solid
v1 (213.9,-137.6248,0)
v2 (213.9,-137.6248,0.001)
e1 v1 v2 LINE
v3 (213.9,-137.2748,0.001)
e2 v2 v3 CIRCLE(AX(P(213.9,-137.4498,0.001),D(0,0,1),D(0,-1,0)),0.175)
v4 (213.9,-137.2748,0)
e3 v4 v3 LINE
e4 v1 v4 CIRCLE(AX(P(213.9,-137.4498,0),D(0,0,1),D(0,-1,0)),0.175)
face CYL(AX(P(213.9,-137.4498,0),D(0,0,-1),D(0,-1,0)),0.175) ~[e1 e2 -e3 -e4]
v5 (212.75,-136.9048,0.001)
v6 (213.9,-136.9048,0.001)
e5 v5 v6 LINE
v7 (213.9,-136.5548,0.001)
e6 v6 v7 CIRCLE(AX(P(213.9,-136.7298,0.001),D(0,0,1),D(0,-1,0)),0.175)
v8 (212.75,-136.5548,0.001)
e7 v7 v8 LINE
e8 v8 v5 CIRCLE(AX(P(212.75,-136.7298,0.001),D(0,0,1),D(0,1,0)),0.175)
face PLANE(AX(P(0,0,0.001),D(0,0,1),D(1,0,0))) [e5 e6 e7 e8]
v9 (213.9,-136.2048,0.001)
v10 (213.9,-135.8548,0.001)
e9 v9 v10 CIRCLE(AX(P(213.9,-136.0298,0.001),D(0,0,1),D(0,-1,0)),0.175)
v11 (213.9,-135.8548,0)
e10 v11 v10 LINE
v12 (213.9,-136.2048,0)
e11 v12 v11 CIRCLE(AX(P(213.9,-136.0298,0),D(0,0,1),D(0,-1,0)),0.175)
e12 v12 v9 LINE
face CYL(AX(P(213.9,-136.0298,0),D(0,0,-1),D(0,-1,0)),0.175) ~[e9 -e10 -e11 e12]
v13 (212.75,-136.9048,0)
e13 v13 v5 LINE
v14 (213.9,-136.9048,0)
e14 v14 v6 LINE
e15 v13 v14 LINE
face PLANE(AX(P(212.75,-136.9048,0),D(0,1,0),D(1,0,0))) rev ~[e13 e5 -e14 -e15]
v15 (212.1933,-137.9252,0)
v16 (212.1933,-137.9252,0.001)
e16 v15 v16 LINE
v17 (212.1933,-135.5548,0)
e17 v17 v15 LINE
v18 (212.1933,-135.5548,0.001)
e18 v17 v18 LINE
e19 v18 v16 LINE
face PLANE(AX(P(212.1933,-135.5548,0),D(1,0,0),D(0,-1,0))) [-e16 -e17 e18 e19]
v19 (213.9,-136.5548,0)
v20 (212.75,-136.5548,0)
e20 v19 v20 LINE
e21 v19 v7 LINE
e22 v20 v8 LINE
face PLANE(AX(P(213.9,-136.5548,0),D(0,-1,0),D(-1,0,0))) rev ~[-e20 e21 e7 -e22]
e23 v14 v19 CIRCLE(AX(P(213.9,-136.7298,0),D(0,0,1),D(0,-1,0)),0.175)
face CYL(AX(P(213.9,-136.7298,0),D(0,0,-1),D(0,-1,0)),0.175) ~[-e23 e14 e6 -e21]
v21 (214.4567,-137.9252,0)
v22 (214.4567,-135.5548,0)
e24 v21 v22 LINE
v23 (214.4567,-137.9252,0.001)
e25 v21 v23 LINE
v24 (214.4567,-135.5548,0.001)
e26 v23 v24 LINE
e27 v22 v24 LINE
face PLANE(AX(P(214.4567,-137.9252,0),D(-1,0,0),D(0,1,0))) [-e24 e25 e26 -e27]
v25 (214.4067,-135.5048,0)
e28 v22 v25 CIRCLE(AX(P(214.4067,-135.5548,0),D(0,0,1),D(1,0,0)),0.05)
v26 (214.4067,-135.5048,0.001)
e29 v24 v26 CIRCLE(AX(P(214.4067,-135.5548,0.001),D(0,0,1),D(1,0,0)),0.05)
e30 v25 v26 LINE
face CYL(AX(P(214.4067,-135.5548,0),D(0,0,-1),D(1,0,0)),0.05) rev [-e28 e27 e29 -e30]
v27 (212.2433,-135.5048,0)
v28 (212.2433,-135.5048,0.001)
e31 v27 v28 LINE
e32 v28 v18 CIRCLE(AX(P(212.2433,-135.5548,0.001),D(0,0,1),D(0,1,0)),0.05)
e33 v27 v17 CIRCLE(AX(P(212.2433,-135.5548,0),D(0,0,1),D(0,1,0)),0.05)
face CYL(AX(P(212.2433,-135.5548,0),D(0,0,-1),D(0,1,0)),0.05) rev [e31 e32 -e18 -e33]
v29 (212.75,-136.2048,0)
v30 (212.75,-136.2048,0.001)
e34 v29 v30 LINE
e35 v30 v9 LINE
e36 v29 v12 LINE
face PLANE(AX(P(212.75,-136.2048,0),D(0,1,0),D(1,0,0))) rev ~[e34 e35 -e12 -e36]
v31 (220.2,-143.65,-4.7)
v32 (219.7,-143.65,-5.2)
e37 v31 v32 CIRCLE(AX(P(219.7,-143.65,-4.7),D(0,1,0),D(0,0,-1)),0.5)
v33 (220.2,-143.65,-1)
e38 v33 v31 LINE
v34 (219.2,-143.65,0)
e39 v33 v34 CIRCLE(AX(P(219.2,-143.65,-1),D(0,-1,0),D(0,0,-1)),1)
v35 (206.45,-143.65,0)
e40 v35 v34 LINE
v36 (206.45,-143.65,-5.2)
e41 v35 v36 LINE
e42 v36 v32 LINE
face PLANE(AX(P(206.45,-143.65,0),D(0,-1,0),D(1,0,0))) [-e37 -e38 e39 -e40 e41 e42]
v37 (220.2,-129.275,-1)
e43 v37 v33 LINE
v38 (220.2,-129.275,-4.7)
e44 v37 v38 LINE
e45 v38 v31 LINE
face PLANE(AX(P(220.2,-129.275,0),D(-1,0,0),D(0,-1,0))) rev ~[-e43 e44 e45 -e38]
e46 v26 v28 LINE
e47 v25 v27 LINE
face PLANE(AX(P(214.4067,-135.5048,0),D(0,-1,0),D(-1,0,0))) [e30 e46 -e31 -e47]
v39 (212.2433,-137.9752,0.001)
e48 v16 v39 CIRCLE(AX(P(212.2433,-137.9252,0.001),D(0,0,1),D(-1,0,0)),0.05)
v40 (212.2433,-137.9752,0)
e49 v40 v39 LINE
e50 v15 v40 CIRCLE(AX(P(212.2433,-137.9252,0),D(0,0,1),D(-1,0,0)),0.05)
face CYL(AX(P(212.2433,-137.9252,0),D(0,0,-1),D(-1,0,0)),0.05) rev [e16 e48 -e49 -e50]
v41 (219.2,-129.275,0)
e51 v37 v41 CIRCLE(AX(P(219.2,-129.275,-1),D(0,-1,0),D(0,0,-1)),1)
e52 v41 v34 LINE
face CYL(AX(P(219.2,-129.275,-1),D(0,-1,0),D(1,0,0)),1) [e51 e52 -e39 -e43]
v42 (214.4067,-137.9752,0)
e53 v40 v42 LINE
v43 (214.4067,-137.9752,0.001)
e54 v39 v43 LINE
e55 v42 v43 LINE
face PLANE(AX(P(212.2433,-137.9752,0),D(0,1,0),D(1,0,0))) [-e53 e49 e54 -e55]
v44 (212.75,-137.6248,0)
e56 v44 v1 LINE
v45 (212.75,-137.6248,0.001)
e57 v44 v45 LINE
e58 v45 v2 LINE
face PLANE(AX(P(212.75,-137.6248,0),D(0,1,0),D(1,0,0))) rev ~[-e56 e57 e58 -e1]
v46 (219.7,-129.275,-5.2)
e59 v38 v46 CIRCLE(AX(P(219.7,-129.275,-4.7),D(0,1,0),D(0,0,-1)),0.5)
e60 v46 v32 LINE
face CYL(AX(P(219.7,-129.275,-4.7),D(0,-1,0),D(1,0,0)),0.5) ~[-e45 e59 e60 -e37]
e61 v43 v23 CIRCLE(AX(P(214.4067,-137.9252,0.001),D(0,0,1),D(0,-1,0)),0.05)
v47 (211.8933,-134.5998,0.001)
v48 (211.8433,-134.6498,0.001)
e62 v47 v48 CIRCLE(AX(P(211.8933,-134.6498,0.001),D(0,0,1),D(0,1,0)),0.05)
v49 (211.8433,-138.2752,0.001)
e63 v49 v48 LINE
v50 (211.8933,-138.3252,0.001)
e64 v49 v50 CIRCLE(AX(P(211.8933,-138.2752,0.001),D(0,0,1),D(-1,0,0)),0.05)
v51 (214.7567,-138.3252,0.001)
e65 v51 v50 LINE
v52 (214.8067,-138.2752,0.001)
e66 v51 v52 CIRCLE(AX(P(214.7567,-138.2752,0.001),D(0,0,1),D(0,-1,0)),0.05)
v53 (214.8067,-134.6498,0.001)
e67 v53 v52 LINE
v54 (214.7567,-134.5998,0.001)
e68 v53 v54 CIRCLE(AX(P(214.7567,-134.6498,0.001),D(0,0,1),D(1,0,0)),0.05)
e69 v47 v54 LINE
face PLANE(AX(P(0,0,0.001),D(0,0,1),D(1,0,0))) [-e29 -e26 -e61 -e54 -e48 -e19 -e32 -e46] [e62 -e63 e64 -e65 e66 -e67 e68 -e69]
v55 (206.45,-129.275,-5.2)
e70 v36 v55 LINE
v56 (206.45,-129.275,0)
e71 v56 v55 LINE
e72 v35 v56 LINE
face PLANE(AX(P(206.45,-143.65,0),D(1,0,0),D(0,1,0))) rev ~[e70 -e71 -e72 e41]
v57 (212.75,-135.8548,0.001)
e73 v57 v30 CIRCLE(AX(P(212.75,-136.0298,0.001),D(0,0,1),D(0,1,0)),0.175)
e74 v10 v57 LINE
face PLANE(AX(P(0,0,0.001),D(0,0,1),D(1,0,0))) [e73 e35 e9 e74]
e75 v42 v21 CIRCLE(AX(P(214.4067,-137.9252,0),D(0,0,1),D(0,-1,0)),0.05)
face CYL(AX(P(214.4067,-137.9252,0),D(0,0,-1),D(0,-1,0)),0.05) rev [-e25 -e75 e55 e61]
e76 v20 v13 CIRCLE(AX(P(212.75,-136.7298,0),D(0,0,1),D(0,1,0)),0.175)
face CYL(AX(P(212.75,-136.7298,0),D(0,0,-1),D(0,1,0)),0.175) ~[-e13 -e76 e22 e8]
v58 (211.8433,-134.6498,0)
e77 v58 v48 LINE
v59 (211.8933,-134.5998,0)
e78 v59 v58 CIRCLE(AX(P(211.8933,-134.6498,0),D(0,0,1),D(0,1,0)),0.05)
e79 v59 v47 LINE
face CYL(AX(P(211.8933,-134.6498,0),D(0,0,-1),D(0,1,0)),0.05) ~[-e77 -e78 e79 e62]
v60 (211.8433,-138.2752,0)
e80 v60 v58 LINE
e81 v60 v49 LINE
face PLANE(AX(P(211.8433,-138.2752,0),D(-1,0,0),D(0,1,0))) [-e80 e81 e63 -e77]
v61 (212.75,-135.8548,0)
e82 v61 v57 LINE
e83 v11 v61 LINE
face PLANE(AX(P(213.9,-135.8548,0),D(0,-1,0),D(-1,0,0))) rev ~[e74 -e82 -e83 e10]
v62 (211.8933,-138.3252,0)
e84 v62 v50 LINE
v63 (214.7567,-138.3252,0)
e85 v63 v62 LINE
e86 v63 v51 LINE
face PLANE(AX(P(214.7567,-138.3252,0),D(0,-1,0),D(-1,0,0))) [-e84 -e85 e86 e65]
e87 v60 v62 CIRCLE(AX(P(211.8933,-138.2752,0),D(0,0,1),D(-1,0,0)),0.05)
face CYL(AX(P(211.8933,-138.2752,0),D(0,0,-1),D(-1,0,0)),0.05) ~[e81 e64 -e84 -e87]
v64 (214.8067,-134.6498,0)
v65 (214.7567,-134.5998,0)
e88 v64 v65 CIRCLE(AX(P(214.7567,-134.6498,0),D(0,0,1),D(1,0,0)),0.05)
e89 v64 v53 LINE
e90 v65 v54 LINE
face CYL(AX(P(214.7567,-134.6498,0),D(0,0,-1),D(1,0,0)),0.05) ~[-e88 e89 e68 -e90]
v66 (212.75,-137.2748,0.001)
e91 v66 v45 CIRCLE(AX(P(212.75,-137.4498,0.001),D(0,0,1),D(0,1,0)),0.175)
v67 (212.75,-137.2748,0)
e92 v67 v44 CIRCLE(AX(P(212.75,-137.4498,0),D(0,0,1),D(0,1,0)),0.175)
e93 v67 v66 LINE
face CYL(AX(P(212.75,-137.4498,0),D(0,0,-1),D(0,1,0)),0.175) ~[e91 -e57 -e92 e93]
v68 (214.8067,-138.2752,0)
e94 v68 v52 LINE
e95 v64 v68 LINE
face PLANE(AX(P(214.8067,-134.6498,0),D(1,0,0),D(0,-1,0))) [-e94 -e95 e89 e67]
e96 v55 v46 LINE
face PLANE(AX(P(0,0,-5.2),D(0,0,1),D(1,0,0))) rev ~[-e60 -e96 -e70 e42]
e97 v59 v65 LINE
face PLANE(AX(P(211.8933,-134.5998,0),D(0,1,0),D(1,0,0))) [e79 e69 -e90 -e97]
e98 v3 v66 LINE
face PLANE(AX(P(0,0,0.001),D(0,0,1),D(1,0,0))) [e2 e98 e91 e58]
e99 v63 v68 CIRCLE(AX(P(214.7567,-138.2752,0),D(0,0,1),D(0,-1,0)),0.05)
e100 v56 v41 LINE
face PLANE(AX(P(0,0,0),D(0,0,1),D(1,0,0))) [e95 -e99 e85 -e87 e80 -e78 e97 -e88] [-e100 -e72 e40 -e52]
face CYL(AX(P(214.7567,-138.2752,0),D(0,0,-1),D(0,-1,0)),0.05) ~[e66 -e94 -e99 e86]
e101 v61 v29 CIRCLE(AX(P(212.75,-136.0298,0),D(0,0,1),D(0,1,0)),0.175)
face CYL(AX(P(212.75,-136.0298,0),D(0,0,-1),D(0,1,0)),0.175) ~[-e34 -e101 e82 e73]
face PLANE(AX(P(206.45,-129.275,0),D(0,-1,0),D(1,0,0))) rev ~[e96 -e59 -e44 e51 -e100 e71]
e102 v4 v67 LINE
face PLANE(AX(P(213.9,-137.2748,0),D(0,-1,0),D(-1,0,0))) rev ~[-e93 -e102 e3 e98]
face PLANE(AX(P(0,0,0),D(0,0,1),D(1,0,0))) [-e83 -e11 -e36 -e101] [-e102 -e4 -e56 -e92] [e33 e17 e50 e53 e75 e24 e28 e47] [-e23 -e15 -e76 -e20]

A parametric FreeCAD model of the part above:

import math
import FreeCAD as App
import Part
import Sketcher
from FreeCAD import Vector
Q = App.Units.Quantity


def edges_at(feature, points):
    """Names of the edges that pass closest to the given points."""
    edges = feature.Shape.Edges
    near = lambda p: min(range(len(edges)), key=lambda i: edges[i].distToShape(Part.Vertex(*p))[0])
    return sorted({f"Edge{near(p) + 1}" for p in points})


def add_polygon(sketch, points):
    """Adds a closed chain of lines whose ends are joined by coincident constraints."""
    first, n = sketch.GeometryCount, len(points)
    for a, b in zip(points, points[1:] + points[:1]):
        sketch.addGeometry(Part.LineSegment(App.Vector(*a, 0), App.Vector(*b, 0)), False)
    for i in range(n):
        sketch.addConstraint(Sketcher.Constraint("Coincident", first + i, 2, first + (i + 1) % n, 1))

doc = App.newDocument("Part")
body = doc.addObject("PartDesign::Body", "Body")

# Sketch on XY plane
sketch1 = body.newObject("Sketcher::SketchObject", "Sketch")
sketch1.AttachmentSupport = (doc.getObject("XY_Plane"), [""])
sketch1.MapMode = "FlatFace"
add_polygon(sketch1, [(206, -129), (206, -144), (220, -144), (220, -129)])  # lines 0-3
sketch1.addConstraint(Sketcher.Constraint("Vertical", 0))
sketch1.addConstraint(Sketcher.Constraint("Horizontal", 1))
sketch1.addConstraint(Sketcher.Constraint("Vertical", 2))
sketch1.addConstraint(Sketcher.Constraint("Horizontal", 3))
sketch1.addConstraint(Sketcher.Constraint("DistanceX", 1, 1, 1, 2, Q("13.75 mm")))
sketch1.addConstraint(Sketcher.Constraint("DistanceX", -1, 1, 1, 2, Q("220.2 mm")))
sketch1.addConstraint(Sketcher.Constraint("DistanceY", 0, 2, 0, 1, Q("14.375 mm")))
sketch1.addConstraint(Sketcher.Constraint("DistanceY", 0, 2, -1, 1, Q("143.65 mm")))
pad1 = body.newObject("PartDesign::Pad", "Pad")
pad1.Profile = sketch1
pad1.Length = 5.2
pad1.Reversed = True
doc.recompute()

fillet = body.newObject("PartDesign::Fillet", "Fillet")
fillet.Base = (pad1, edges_at(pad1, [(220.2, -136.463, -5.2)]))
fillet.Radius = 0.5
doc.recompute()

fillet2 = body.newObject("PartDesign::Fillet", "Fillet001")
fillet2.Base = (fillet, edges_at(fillet, [(220.2, -136.463, 0)]))
fillet2.Radius = 1

# Sketch on XY plane
sketch2 = body.newObject("Sketcher::SketchObject", "Sketch001")
sketch2.AttachmentSupport = (doc.getObject("XY_Plane"), [""])
sketch2.MapMode = "FlatFace"
sketch2.addGeometry(Part.LineSegment(Vector(214.757, -134.6, 0), Vector(211.893, -134.6, 0)), False)
sketch2.addGeometry(Part.ArcOfCircle(Part.Circle(Vector(211.893, -134.65, 0), Vector(0, 0, 1), 0.05), math.radians(90), math.radians(180)), False)
sketch2.addGeometry(Part.LineSegment(Vector(211.843, -134.65, 0), Vector(211.843, -138.275, 0)), False)
sketch2.addGeometry(Part.ArcOfCircle(Part.Circle(Vector(211.893, -138.275, 0), Vector(0, 0, 1), 0.05), math.radians(180), math.radians(270)), False)
sketch2.addGeometry(Part.LineSegment(Vector(211.893, -138.325, 0), Vector(214.757, -138.325, 0)), False)
sketch2.addGeometry(Part.ArcOfCircle(Part.Circle(Vector(214.757, -138.275, 0), Vector(0, 0, 1), 0.05), math.radians(-90), math.radians(0)), False)
sketch2.addGeometry(Part.LineSegment(Vector(214.807, -138.275, 0), Vector(214.807, -134.65, 0)), False)
sketch2.addGeometry(Part.ArcOfCircle(Part.Circle(Vector(214.757, -134.65, 0), Vector(0, 0, 1), 0.05), math.radians(0), math.radians(90)), False)
sketch2.addGeometry(Part.LineSegment(Vector(214.407, -137.975, 0), Vector(212.243, -137.975, 0)), False)
sketch2.addGeometry(Part.ArcOfCircle(Part.Circle(Vector(212.243, -137.925, 0), Vector(0, 0, 1), 0.05), math.radians(180), math.radians(270)), False)
sketch2.addGeometry(Part.LineSegment(Vector(212.193, -137.925, 0), Vector(212.193, -135.555, 0)), False)
sketch2.addGeometry(Part.ArcOfCircle(Part.Circle(Vector(212.243, -135.555, 0), Vector(0, 0, 1), 0.05), math.radians(90), math.radians(180)), False)
sketch2.addGeometry(Part.LineSegment(Vector(212.243, -135.505, 0), Vector(214.407, -135.505, 0)), False)
sketch2.addGeometry(Part.ArcOfCircle(Part.Circle(Vector(214.407, -135.555, 0), Vector(0, 0, 1), 0.05), math.radians(0), math.radians(90)), False)
sketch2.addGeometry(Part.LineSegment(Vector(214.457, -135.555, 0), Vector(214.457, -137.925, 0)), False)
sketch2.addGeometry(Part.ArcOfCircle(Part.Circle(Vector(214.407, -137.925, 0), Vector(0, 0, 1), 0.05), math.radians(-90), math.radians(0)), False)
sketch2.addGeometry(Part.ArcOfCircle(Part.Circle(Vector(212.75, -137.45, 0), Vector(0, 0, 1), 0.175), math.radians(90), math.radians(270)), False)
sketch2.addGeometry(Part.LineSegment(Vector(212.75, -137.625, 0), Vector(213.9, -137.625, 0)), False)
sketch2.addGeometry(Part.ArcOfCircle(Part.Circle(Vector(213.9, -137.45, 0), Vector(0, 0, 1), 0.175), math.radians(-90), math.radians(90)), False)
sketch2.addGeometry(Part.LineSegment(Vector(213.9, -137.275, 0), Vector(212.75, -137.275, 0)), False)
sketch2.addGeometry(Part.ArcOfCircle(Part.Circle(Vector(212.75, -136.73, 0), Vector(0, 0, 1), 0.175), math.radians(90), math.radians(270)), False)
sketch2.addGeometry(Part.LineSegment(Vector(212.75, -136.905, 0), Vector(213.9, -136.905, 0)), False)
sketch2.addGeometry(Part.ArcOfCircle(Part.Circle(Vector(213.9, -136.73, 0), Vector(0, 0, 1), 0.175), math.radians(-90), math.radians(90)), False)
sketch2.addGeometry(Part.LineSegment(Vector(213.9, -136.555, 0), Vector(212.75, -136.555, 0)), False)
sketch2.addGeometry(Part.ArcOfCircle(Part.Circle(Vector(212.75, -136.03, 0), Vector(0, 0, 1), 0.175), math.radians(90), math.radians(270)), False)
sketch2.addGeometry(Part.LineSegment(Vector(212.75, -136.205, 0), Vector(213.9, -136.205, 0)), False)
sketch2.addGeometry(Part.ArcOfCircle(Part.Circle(Vector(213.9, -136.03, 0), Vector(0, 0, 1), 0.175), math.radians(-90), math.radians(90)), False)
sketch2.addGeometry(Part.LineSegment(Vector(213.9, -135.855, 0), Vector(212.75, -135.855, 0)), False)
sketch2.addConstraint(Sketcher.Constraint("Tangent", 0, 2, 1, 1))
sketch2.addConstraint(Sketcher.Constraint("Tangent", 1, 2, 2, 1))
sketch2.addConstraint(Sketcher.Constraint("Tangent", 2, 2, 3, 1))
sketch2.addConstraint(Sketcher.Constraint("Tangent", 3, 2, 4, 1))
sketch2.addConstraint(Sketcher.Constraint("Tangent", 4, 2, 5, 1))
sketch2.addConstraint(Sketcher.Constraint("Tangent", 5, 2, 6, 1))
sketch2.addConstraint(Sketcher.Constraint("Tangent", 6, 2, 7, 1))
sketch2.addConstraint(Sketcher.Constraint("Tangent", 7, 2, 0, 1))
sketch2.addConstraint(Sketcher.Constraint("Tangent", 8, 2, 9, 2))
sketch2.addConstraint(Sketcher.Constraint("Tangent", 9, 1, 10, 1))
sketch2.addConstraint(Sketcher.Constraint("Tangent", 10, 2, 11, 2))
sketch2.addConstraint(Sketcher.Constraint("Tangent", 11, 1, 12, 1))
sketch2.addConstraint(Sketcher.Constraint("Tangent", 12, 2, 13, 2))
sketch2.addConstraint(Sketcher.Constraint("Tangent", 13, 1, 14, 1))
sketch2.addConstraint(Sketcher.Constraint("Tangent", 14, 2, 15, 2))
sketch2.addConstraint(Sketcher.Constraint("Tangent", 15, 1, 8, 1))
sketch2.addConstraint(Sketcher.Constraint("Tangent", 16, 2, 17, 1))
sketch2.addConstraint(Sketcher.Constraint("Tangent", 17, 2, 18, 1))
sketch2.addConstraint(Sketcher.Constraint("Tangent", 18, 2, 19, 1))
sketch2.addConstraint(Sketcher.Constraint("Tangent", 19, 2, 16, 1))
sketch2.addConstraint(Sketcher.Constraint("Tangent", 20, 2, 21, 1))
sketch2.addConstraint(Sketcher.Constraint("Tangent", 21, 2, 22, 1))
sketch2.addConstraint(Sketcher.Constraint("Tangent", 22, 2, 23, 1))
sketch2.addConstraint(Sketcher.Constraint("Tangent", 23, 2, 20, 1))
sketch2.addConstraint(Sketcher.Constraint("Tangent", 24, 2, 25, 1))
sketch2.addConstraint(Sketcher.Constraint("Tangent", 25, 2, 26, 1))
sketch2.addConstraint(Sketcher.Constraint("Tangent", 26, 2, 27, 1))
sketch2.addConstraint(Sketcher.Constraint("Tangent", 27, 2, 24, 1))
sketch2.addConstraint(Sketcher.Constraint("Horizontal", 0))
sketch2.addConstraint(Sketcher.Constraint("Vertical", 2))
sketch2.addConstraint(Sketcher.Constraint("Horizontal", 4))
sketch2.addConstraint(Sketcher.Constraint("Vertical", 6))
sketch2.addConstraint(Sketcher.Constraint("Horizontal", 8))
sketch2.addConstraint(Sketcher.Constraint("Vertical", 10))
sketch2.addConstraint(Sketcher.Constraint("Horizontal", 12))
sketch2.addConstraint(Sketcher.Constraint("Vertical", 14))
sketch2.addConstraint(Sketcher.Constraint("Horizontal", 17))
sketch2.addConstraint(Sketcher.Constraint("Horizontal", 19))
sketch2.addConstraint(Sketcher.Constraint("Horizontal", 21))
sketch2.addConstraint(Sketcher.Constraint("Horizontal", 23))
sketch2.addConstraint(Sketcher.Constraint("Horizontal", 25))
sketch2.addConstraint(Sketcher.Constraint("Horizontal", 27))
sketch2.addConstraint(Sketcher.Constraint("Equal", 1, 3))
sketch2.addConstraint(Sketcher.Constraint("Equal", 3, 5))
sketch2.addConstraint(Sketcher.Constraint("Equal", 5, 7))
sketch2.addConstraint(Sketcher.Constraint("Equal", 7, 9))
sketch2.addConstraint(Sketcher.Constraint("Equal", 9, 11))
sketch2.addConstraint(Sketcher.Constraint("Equal", 11, 13))
sketch2.addConstraint(Sketcher.Constraint("Equal", 13, 15))
sketch2.addConstraint(Sketcher.Constraint("Equal", 18, 20))
sketch2.addConstraint(Sketcher.Constraint("Equal", 22, 24))
sketch2.addConstraint(Sketcher.Constraint("Vertical", 16, 3, 20, 3))
sketch2.addConstraint(Sketcher.Constraint("Vertical", 18, 3, 22, 3))
sketch2.addConstraint(Sketcher.Constraint("Vertical", 20, 3, 24, 3))
sketch2.addConstraint(Sketcher.Constraint("Vertical", 22, 3, 26, 3))
sketch2.addConstraint(Sketcher.Constraint("Radius", 16, Q("0.175 mm")))
sketch2.addConstraint(Sketcher.Constraint("Radius", 1, Q("0.05 mm")))
sketch2.addConstraint(Sketcher.Constraint("DistanceX", 17, 1, 17, 2, Q("1.15 mm")))
sketch2.addConstraint(Sketcher.Constraint("DistanceX", -1, 1, 18, 3, Q("213.9 mm")))
sketch2.addConstraint(Sketcher.Constraint("DistanceY", 20, 3, 24, 3, Q("0.7 mm")))
sketch2.addConstraint(Sketcher.Constraint("DistanceX", 1, 2, 11, 3, Q("0.4 mm")))
sketch2.addConstraint(Sketcher.Constraint("DistanceY", 3, 2, 9, 3, Q("0.4 mm")))
sketch2.addConstraint(Sketcher.Constraint("DistanceX", 15, 3, 5, 2, Q("0.4 mm")))
sketch2.addConstraint(Sketcher.Constraint("DistanceY", 26, 2, 13, 3, Q("0.3 mm")))
sketch2.addConstraint(Sketcher.Constraint("DistanceY", 16, 3, 20, 3, Q("0.72 mm")))
sketch2.addConstraint(Sketcher.Constraint("DistanceY", 24, 3, 1, 3, Q("1.38 mm")))
sketch2.addConstraint(Sketcher.Constraint("DistanceX", 0, 2, 0, 1, Q("2.8634 mm")))
sketch2.addConstraint(Sketcher.Constraint("DistanceY", 2, 2, 2, 1, Q("3.6254 mm")))
sketch2.addConstraint(Sketcher.Constraint("DistanceX", -1, 1, 1, 3, Q("211.8933 mm")))
sketch2.addConstraint(Sketcher.Constraint("DistanceY", 1, 3, -1, 1, Q("134.6498 mm")))
pad2 = body.newObject("PartDesign::Pad", "Pad001")
pad2.Profile = sketch2
pad2.Length = 0.001

doc.recompute()
